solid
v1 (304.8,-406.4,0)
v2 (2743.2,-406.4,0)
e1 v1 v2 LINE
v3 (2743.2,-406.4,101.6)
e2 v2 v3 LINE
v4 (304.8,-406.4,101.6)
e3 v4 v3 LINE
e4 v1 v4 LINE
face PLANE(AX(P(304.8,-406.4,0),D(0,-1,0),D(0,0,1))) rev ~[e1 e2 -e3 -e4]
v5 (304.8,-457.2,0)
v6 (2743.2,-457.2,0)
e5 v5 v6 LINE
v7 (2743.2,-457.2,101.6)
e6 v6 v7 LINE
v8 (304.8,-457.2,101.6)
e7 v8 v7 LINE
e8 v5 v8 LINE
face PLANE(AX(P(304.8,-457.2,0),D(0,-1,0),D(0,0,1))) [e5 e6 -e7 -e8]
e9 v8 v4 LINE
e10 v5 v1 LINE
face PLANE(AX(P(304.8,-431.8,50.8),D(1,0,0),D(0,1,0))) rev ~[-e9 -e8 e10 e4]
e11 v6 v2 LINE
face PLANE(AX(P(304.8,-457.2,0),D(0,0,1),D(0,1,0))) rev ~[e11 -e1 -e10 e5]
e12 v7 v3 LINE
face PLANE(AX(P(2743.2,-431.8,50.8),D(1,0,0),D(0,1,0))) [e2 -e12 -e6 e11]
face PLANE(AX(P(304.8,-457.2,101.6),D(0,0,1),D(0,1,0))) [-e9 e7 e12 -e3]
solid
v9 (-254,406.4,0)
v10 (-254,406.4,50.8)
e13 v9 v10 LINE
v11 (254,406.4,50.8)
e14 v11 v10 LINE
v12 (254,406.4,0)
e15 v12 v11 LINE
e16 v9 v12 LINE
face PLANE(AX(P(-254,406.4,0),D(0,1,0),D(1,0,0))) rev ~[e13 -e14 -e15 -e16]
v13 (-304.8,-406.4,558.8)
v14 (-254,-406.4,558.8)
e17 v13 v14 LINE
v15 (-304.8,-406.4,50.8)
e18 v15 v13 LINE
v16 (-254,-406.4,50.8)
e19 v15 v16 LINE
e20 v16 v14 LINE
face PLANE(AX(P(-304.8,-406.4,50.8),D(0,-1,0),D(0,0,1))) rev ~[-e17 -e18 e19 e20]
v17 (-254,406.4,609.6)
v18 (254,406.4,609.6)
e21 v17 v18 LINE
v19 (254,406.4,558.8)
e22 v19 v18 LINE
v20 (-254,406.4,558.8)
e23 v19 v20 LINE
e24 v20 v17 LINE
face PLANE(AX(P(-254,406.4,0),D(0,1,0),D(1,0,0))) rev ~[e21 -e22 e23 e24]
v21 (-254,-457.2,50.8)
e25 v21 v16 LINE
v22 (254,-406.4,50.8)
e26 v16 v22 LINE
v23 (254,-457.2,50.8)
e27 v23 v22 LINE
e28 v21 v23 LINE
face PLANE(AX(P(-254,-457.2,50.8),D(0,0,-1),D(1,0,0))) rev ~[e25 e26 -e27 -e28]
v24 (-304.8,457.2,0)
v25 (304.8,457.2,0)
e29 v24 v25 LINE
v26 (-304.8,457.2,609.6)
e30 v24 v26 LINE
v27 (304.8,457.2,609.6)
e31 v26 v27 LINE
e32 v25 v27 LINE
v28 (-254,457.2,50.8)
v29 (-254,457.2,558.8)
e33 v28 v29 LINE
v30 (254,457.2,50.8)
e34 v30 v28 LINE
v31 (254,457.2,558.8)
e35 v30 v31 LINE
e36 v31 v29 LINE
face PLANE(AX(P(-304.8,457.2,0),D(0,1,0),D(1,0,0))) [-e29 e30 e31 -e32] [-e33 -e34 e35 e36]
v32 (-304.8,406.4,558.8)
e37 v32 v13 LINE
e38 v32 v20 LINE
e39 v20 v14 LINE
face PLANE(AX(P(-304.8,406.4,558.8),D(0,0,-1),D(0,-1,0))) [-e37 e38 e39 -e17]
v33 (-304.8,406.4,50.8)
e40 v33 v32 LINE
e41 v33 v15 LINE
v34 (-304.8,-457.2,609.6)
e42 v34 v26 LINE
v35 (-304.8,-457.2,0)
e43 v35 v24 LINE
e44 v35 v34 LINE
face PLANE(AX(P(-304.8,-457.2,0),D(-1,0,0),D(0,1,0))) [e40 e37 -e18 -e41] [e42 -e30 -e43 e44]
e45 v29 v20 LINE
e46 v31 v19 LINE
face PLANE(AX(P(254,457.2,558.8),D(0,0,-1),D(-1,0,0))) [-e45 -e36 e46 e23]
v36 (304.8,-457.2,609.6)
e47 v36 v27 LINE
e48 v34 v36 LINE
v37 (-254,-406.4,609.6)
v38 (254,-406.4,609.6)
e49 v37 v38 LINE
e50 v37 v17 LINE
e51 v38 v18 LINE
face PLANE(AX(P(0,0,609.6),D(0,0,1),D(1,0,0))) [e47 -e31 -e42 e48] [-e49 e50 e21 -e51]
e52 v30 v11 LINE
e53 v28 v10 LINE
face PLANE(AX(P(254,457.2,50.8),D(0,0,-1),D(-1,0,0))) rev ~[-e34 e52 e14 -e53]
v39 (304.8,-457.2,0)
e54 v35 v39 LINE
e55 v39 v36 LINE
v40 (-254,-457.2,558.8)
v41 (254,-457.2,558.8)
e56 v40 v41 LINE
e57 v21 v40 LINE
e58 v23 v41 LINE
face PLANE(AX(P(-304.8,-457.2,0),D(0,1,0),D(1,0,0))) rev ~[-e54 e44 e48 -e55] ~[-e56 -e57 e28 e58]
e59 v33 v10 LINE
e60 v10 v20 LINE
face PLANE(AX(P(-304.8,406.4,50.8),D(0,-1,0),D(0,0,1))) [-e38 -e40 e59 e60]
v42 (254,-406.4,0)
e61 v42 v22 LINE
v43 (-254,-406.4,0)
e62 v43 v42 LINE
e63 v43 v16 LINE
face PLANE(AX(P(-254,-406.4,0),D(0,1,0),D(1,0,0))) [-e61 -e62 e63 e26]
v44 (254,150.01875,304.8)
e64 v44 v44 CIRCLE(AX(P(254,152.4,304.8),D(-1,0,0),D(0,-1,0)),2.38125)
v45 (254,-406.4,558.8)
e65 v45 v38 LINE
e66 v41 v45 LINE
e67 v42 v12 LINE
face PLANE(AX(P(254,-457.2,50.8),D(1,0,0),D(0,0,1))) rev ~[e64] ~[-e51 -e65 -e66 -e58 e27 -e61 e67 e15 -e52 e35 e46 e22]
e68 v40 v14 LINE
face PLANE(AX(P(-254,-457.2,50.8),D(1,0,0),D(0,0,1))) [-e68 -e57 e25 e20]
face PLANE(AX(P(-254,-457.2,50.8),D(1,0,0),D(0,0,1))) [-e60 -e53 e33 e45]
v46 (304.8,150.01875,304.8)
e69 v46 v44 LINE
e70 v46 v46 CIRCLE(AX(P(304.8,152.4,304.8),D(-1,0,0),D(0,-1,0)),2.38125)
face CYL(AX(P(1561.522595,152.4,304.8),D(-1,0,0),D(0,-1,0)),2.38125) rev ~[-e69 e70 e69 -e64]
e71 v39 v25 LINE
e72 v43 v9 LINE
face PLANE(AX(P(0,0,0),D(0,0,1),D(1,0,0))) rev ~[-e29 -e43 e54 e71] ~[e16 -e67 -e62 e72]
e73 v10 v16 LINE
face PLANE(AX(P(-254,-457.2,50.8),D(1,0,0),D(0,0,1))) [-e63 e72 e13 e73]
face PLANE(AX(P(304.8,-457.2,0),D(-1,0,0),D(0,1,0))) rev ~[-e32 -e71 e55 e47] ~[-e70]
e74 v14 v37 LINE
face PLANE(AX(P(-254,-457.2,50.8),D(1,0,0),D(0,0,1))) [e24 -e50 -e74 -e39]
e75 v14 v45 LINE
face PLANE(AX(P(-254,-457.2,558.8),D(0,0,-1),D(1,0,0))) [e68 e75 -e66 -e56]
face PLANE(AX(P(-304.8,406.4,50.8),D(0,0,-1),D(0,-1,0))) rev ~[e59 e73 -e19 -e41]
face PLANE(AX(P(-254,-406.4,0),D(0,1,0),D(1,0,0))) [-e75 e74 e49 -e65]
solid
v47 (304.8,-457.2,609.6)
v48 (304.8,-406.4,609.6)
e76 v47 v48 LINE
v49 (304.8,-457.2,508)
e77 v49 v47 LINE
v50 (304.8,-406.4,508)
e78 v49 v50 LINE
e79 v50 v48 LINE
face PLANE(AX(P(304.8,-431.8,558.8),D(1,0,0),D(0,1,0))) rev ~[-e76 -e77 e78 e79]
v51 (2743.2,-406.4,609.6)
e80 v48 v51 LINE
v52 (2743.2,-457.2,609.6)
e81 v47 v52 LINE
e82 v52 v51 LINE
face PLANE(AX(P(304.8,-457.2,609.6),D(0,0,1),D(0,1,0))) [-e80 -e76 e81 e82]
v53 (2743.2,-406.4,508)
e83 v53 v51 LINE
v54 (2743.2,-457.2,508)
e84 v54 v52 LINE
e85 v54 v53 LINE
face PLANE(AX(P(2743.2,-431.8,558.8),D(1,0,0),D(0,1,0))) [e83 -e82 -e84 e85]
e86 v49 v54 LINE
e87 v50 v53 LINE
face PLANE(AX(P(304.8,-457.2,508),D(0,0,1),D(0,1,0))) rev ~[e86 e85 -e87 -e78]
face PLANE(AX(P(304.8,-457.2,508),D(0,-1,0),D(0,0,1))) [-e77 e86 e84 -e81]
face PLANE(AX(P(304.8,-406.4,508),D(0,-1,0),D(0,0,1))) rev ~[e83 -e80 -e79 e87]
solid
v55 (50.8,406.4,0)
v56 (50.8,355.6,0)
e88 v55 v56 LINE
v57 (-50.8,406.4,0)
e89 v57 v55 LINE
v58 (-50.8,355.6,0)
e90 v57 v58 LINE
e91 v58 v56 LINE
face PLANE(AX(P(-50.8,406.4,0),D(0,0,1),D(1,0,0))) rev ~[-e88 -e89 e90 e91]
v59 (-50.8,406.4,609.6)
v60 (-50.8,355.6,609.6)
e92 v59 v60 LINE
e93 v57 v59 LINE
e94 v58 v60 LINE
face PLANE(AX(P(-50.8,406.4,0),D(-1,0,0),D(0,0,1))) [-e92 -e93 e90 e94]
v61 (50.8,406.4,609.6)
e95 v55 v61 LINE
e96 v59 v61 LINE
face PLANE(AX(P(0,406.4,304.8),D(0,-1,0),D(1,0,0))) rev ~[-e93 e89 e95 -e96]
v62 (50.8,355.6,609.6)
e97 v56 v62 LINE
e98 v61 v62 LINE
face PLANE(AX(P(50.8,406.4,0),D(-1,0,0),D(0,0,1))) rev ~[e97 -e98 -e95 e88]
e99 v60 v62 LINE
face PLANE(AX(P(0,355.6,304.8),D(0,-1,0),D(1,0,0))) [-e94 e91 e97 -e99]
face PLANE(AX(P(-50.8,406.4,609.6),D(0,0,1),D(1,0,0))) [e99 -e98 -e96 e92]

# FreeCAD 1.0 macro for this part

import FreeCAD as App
import Part
import Sketcher

V = App.Vector
Q = App.Units.Quantity

doc = App.newDocument("Part")
body = doc.addObject("PartDesign::Body", "Body")

sketch1 = body.newObject("Sketcher::SketchObject", "Sketch")
sketch1.AttachmentSupport = (doc.getObject("XY_Plane"), [""])
sketch1.MapMode = "FlatFace"
sketch1.addGeometry([
    Part.LineSegment(V(-305, 457, 0), V(-305, -457, 0)),
    Part.LineSegment(V(-305, -457, 0), V(305, -457, 0)),
    Part.LineSegment(V(305, -457, 0), V(305, 457, 0)),
    Part.LineSegment(V(305, 457, 0), V(-305, 457, 0)),
    Part.LineSegment(V(254, -406, 0), V(-254, -406, 0)),
    Part.LineSegment(V(-254, -406, 0), V(-254, 406, 0)),
    Part.LineSegment(V(-254, 406, 0), V(254, 406, 0)),
    Part.LineSegment(V(254, 406, 0), V(254, -406, 0)),
], False)
sketch1.addConstraint([
    Sketcher.Constraint("Coincident", 0, 2, 1, 1),
    Sketcher.Constraint("Coincident", 1, 2, 2, 1),
    Sketcher.Constraint("Coincident", 2, 2, 3, 1),
    Sketcher.Constraint("Coincident", 3, 2, 0, 1),
    Sketcher.Constraint("Coincident", 4, 2, 5, 1),
    Sketcher.Constraint("Coincident", 5, 2, 6, 1),
    Sketcher.Constraint("Coincident", 6, 2, 7, 1),
    Sketcher.Constraint("Coincident", 7, 2, 4, 1),
    Sketcher.Constraint("Vertical", 0),
    Sketcher.Constraint("Horizontal", 1),
    Sketcher.Constraint("Vertical", 2),
    Sketcher.Constraint("Horizontal", 3),
    Sketcher.Constraint("Horizontal", 4),
    Sketcher.Constraint("Vertical", 5),
    Sketcher.Constraint("Horizontal", 6),
    Sketcher.Constraint("Vertical", 7),
    Sketcher.Constraint("Symmetric", 0, 2, 2, 2, -1, 1),
    Sketcher.Constraint("Symmetric", 4, 2, 6, 2, -1, 1),
    Sketcher.Constraint("DistanceX", 1, 1, 1, 2, Q("24 in")),
    Sketcher.Constraint("DistanceX", 4, 2, 4, 1, Q("20 in")),
    Sketcher.Constraint("DistanceY", 0, 2, 0, 1, Q("36 in")),
    Sketcher.Constraint("DistanceY", 5, 1, 5, 2, Q("32 in")),
])
pad1 = body.newObject("PartDesign::Pad", "Pad")
pad1.Profile = sketch1
pad1.Length = Q("24 in")

sketch2 = body.newObject("Sketcher::SketchObject", "Sketch001")
sketch2.AttachmentSupport = (doc.getObject("XZ_Plane"), [""])
sketch2.MapMode = "FlatFace"
sketch2.AttachmentOffset = App.Placement(V(0, 0, 18 * 25.4), App.Rotation())
sketch2.addGeometry([
    Part.LineSegment(V(-254, 559, 0), V(-254, 51, 0)),
    Part.LineSegment(V(-254, 51, 0), V(254, 51, 0)),
    Part.LineSegment(V(254, 51, 0), V(254, 559, 0)),
    Part.LineSegment(V(254, 559, 0), V(-254, 559, 0)),
], False)
sketch2.addConstraint([
    Sketcher.Constraint("Coincident", 0, 2, 1, 1),
    Sketcher.Constraint("Coincident", 1, 2, 2, 1),
    Sketcher.Constraint("Coincident", 2, 2, 3, 1),
    Sketcher.Constraint("Coincident", 3, 2, 0, 1),
    Sketcher.Constraint("Vertical", 0),
    Sketcher.Constraint("Horizontal", 1),
    Sketcher.Constraint("Vertical", 2),
    Sketcher.Constraint("Horizontal", 3),
    Sketcher.Constraint("Equal", 3, 0),
    Sketcher.Constraint("DistanceX", 1, 1, 1, 2, Q("20 in")),
    Sketcher.Constraint("DistanceX", 0, 2, -1, 1, Q("10 in")),
    Sketcher.Constraint("DistanceY", -1, 1, 0, 2, Q("2 in")),
])
pocket1 = body.newObject("PartDesign::Pocket", "Pocket")
pocket1.Profile = sketch2
pocket1.Length = Q("2 in")

sketch3 = body.newObject("Sketcher::SketchObject", "Sketch002")
sketch3.AttachmentSupport = (doc.getObject("XZ_Plane"), [""])
sketch3.MapMode = "FlatFace"
sketch3.AttachmentOffset = App.Placement(V(0, 0, -18 * 25.4), App.Rotation())
sketch3.addGeometry([
    Part.LineSegment(V(254, 559, 0), V(254, 51, 0)),
    Part.LineSegment(V(254, 51, 0), V(-254, 51, 0)),
    Part.LineSegment(V(-254, 51, 0), V(-254, 559, 0)),
    Part.LineSegment(V(-254, 559, 0), V(254, 559, 0)),
], False)
sketch3.addConstraint([
    Sketcher.Constraint("Coincident", 0, 2, 1, 1),
    Sketcher.Constraint("Coincident", 1, 2, 2, 1),
    Sketcher.Constraint("Coincident", 2, 2, 3, 1),
    Sketcher.Constraint("Coincident", 3, 2, 0, 1),
    Sketcher.Constraint("Vertical", 0),
    Sketcher.Constraint("Horizontal", 1),
    Sketcher.Constraint("Vertical", 2),
    Sketcher.Constraint("Horizontal", 3),
    Sketcher.Constraint("Equal", 3, 0),
    Sketcher.Constraint("DistanceX", 1, 2, 1, 1, Q("20 in")),
    Sketcher.Constraint("DistanceX", -1, 1, 0, 2, Q("10 in")),
    Sketcher.Constraint("DistanceY", -1, 1, 0, 2, Q("2 in")),
])
pocket2 = body.newObject("PartDesign::Pocket", "Pocket001")
pocket2.Profile = sketch3
pocket2.Length = Q("2 in")
pocket2.Reversed = True

sketch4 = body.newObject("Sketcher::SketchObject", "Sketch003")
sketch4.AttachmentSupport = (doc.getObject("YZ_Plane"), [""])
sketch4.MapMode = "FlatFace"
sketch4.AttachmentOffset = App.Placement(V(0, 0, -12 * 25.4), App.Rotation())
sketch4.addGeometry([
    Part.LineSegment(V(406, 559, 0), V(406, 51, 0)),
    Part.LineSegment(V(406, 51, 0), V(-406, 51, 0)),
    Part.LineSegment(V(-406, 51, 0), V(-406, 559, 0)),
    Part.LineSegment(V(-406, 559, 0), V(406, 559, 0)),
], False)
sketch4.addConstraint([
    Sketcher.Constraint("Coincident", 0, 2, 1, 1),
    Sketcher.Constraint("Coincident", 1, 2, 2, 1),
    Sketcher.Constraint("Coincident", 2, 2, 3, 1),
    Sketcher.Constraint("Coincident", 3, 2, 0, 1),
    Sketcher.Constraint("Vertical", 0),
    Sketcher.Constraint("Horizontal", 1),
    Sketcher.Constraint("Vertical", 2),
    Sketcher.Constraint("Horizontal", 3),
    Sketcher.Constraint("DistanceX", 1, 2, 1, 1, Q("32 in")),
    Sketcher.Constraint("DistanceY", 0, 2, 0, 1, Q("20 in")),
    Sketcher.Constraint("DistanceX", -1, 1, 0, 2, Q("16 in")),
    Sketcher.Constraint("DistanceY", -1, 1, 0, 2, Q("2 in")),
])
pocket3 = body.newObject("PartDesign::Pocket", "Pocket002")
pocket3.Profile = sketch4
pocket3.Length = Q("2 in")
pocket3.Reversed = True

sketch5 = body.newObject("Sketcher::SketchObject", "Sketch004")
sketch5.AttachmentSupport = (doc.getObject("YZ_Plane"), [""])
sketch5.MapMode = "FlatFace"
sketch5.AttachmentOffset = App.Placement(V(0, 0, 12 * 25.4), App.Rotation())
sketch5.addGeometry(Part.Circle(V(152.4, 304.8, 0), V(0, 0, 1), 2.4), False)
sketch5.addConstraint([
    Sketcher.Constraint("Diameter", 0, Q("0.1875 in")),
    Sketcher.Constraint("DistanceX", -1, 1, 0, 3, Q("6 in")),
    Sketcher.Constraint("DistanceY", -1, 1, 0, 3, Q("12 in")),
])
doc.recompute()
hole = body.newObject("PartDesign::Hole", "Hole")
hole.Profile = sketch5
hole.ThreadType = "None"
hole.Diameter = Q("0.1875 in")
hole.DepthType = "ThroughAll"
body2 = doc.addObject("PartDesign::Body", "Body001")
body2.AllowCompound = True

sketch6 = body2.newObject("Sketcher::SketchObject", "Sketch005")
sketch6.AttachmentSupport = (doc.getObject("YZ_Plane001"), [""])
sketch6.MapMode = "FlatFace"
sketch6.AttachmentOffset = App.Placement(V(0, 0, 12 * 25.4), App.Rotation())
sketch6.addGeometry([
    Part.LineSegment(V(-457, 610, 0), V(-457, 508, 0)),
    Part.LineSegment(V(-457, 508, 0), V(-406, 508, 0)),
    Part.LineSegment(V(-406, 508, 0), V(-406, 610, 0)),
    Part.LineSegment(V(-406, 610, 0), V(-457, 610, 0)),
    Part.LineSegment(V(-457, 102, 0), V(-457, 0, 0)),
    Part.LineSegment(V(-457, 0, 0), V(-406, 0, 0)),
    Part.LineSegment(V(-406, 0, 0), V(-406, 102, 0)),
    Part.LineSegment(V(-406, 102, 0), V(-457, 102, 0)),
], False)
sketch6.addConstraint([
    Sketcher.Constraint("Coincident", 0, 2, 1, 1),
    Sketcher.Constraint("Coincident", 1, 2, 2, 1),
    Sketcher.Constraint("Coincident", 2, 2, 3, 1),
    Sketcher.Constraint("Coincident", 3, 2, 0, 1),
    Sketcher.Constraint("Coincident", 4, 2, 5, 1),
    Sketcher.Constraint("Coincident", 5, 2, 6, 1),
    Sketcher.Constraint("Coincident", 6, 2, 7, 1),
    Sketcher.Constraint("Coincident", 7, 2, 4, 1),
    Sketcher.Constraint("Vertical", 0),
    Sketcher.Constraint("Horizontal", 1),
    Sketcher.Constraint("Vertical", 2),
    Sketcher.Constraint("Horizontal", 3),
    Sketcher.Constraint("Vertical", 4),
    Sketcher.Constraint("Horizontal", 5),
    Sketcher.Constraint("Vertical", 6),
    Sketcher.Constraint("Horizontal", 7),
    Sketcher.Constraint("PointOnObject", 4, 2, -1),
    Sketcher.Constraint("Vertical", 3, 2, 4, 2),
    Sketcher.Constraint("Vertical", 2, 2, 5, 2),
    Sketcher.Constraint("Equal", 2, 4),
    Sketcher.Constraint("DistanceX", 1, 1, 1, 2, Q("2 in")),
    Sketcher.Constraint("DistanceY", 0, 2, 0, 1, Q("4 in")),
    Sketcher.Constraint("DistanceX", 0, 2, -1, 1, Q("18 in")),
    Sketcher.Constraint("DistanceY", -1, 1, 0, 2, Q("20 in")),
])
pad2 = body2.newObject("PartDesign::Pad", "Pad001")
pad2.Profile = sketch6
pad2.Length = Q("96 in")
body3 = doc.addObject("PartDesign::Body", "Body002")

sketch7 = body3.newObject("Sketcher::SketchObject", "Sketch006")
sketch7.AttachmentSupport = (doc.getObject("XZ_Plane002"), [""])
sketch7.MapMode = "FlatFace"
sketch7.AttachmentOffset = App.Placement(V(0, 0, -16 * 25.4), App.Rotation())
sketch7.addGeometry([
    Part.LineSegment(V(-51, 610, 0), V(-51, 0, 0)),
    Part.LineSegment(V(-51, 0, 0), V(51, 0, 0)),
    Part.LineSegment(V(51, 0, 0), V(51, 610, 0)),
    Part.LineSegment(V(51, 610, 0), V(-51, 610, 0)),
], False)
sketch7.addConstraint([
    Sketcher.Constraint("Coincident", 0, 2, 1, 1),
    Sketcher.Constraint("Coincident", 1, 2, 2, 1),
    Sketcher.Constraint("Coincident", 2, 2, 3, 1),
    Sketcher.Constraint("Coincident", 3, 2, 0, 1),
    Sketcher.Constraint("Vertical", 0),
    Sketcher.Constraint("Horizontal", 1),
    Sketcher.Constraint("Vertical", 2),
    Sketcher.Constraint("Horizontal", 3),
    Sketcher.Constraint("Symmetric", 0, 2, 1, 2, -1, 1),
    Sketcher.Constraint("DistanceX", 1, 1, 1, 2, Q("4 in")),
    Sketcher.Constraint("DistanceY", 0, 2, 0, 1, Q("24 in")),
])
pad3 = body3.newObject("PartDesign::Pad", "Pad002")
pad3.Profile = sketch7
pad3.Length = Q("2 in")

doc.recompute()
